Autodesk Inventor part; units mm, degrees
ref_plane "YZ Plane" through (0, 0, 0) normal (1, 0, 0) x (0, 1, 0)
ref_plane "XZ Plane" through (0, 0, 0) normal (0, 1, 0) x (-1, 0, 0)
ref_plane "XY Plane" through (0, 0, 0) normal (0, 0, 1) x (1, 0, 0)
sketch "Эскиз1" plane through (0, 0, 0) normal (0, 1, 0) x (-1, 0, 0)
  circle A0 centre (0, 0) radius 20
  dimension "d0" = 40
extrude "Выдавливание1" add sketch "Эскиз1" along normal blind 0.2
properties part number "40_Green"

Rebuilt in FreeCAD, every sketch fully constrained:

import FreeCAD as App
import Part
import Sketcher

V = App.Vector

doc = App.newDocument("Part")
body = doc.addObject("PartDesign::Body", "Body")

sketch1 = doc.addObject("Sketcher::SketchObject", "Sketch")
body.addObject(sketch1)
sketch1.AttachmentSupport = (doc.XZ_Plane, [""])
sketch1.MapMode = "FlatFace"
sketch1.addGeometry(Part.Circle(V(0, 0, 0), V(0, 0, 1), 20), False)
sketch1.addConstraint([
    Sketcher.Constraint("Coincident", 0, 3, -1, 1),
    Sketcher.Constraint("Diameter", 0, 40.0),
])
pad1 = doc.addObject("PartDesign::Pad", "Pad")
body.addObject(pad1)
pad1.Profile = sketch1
pad1.Length = 0.2
pad1.Reversed = True

doc.recompute()
